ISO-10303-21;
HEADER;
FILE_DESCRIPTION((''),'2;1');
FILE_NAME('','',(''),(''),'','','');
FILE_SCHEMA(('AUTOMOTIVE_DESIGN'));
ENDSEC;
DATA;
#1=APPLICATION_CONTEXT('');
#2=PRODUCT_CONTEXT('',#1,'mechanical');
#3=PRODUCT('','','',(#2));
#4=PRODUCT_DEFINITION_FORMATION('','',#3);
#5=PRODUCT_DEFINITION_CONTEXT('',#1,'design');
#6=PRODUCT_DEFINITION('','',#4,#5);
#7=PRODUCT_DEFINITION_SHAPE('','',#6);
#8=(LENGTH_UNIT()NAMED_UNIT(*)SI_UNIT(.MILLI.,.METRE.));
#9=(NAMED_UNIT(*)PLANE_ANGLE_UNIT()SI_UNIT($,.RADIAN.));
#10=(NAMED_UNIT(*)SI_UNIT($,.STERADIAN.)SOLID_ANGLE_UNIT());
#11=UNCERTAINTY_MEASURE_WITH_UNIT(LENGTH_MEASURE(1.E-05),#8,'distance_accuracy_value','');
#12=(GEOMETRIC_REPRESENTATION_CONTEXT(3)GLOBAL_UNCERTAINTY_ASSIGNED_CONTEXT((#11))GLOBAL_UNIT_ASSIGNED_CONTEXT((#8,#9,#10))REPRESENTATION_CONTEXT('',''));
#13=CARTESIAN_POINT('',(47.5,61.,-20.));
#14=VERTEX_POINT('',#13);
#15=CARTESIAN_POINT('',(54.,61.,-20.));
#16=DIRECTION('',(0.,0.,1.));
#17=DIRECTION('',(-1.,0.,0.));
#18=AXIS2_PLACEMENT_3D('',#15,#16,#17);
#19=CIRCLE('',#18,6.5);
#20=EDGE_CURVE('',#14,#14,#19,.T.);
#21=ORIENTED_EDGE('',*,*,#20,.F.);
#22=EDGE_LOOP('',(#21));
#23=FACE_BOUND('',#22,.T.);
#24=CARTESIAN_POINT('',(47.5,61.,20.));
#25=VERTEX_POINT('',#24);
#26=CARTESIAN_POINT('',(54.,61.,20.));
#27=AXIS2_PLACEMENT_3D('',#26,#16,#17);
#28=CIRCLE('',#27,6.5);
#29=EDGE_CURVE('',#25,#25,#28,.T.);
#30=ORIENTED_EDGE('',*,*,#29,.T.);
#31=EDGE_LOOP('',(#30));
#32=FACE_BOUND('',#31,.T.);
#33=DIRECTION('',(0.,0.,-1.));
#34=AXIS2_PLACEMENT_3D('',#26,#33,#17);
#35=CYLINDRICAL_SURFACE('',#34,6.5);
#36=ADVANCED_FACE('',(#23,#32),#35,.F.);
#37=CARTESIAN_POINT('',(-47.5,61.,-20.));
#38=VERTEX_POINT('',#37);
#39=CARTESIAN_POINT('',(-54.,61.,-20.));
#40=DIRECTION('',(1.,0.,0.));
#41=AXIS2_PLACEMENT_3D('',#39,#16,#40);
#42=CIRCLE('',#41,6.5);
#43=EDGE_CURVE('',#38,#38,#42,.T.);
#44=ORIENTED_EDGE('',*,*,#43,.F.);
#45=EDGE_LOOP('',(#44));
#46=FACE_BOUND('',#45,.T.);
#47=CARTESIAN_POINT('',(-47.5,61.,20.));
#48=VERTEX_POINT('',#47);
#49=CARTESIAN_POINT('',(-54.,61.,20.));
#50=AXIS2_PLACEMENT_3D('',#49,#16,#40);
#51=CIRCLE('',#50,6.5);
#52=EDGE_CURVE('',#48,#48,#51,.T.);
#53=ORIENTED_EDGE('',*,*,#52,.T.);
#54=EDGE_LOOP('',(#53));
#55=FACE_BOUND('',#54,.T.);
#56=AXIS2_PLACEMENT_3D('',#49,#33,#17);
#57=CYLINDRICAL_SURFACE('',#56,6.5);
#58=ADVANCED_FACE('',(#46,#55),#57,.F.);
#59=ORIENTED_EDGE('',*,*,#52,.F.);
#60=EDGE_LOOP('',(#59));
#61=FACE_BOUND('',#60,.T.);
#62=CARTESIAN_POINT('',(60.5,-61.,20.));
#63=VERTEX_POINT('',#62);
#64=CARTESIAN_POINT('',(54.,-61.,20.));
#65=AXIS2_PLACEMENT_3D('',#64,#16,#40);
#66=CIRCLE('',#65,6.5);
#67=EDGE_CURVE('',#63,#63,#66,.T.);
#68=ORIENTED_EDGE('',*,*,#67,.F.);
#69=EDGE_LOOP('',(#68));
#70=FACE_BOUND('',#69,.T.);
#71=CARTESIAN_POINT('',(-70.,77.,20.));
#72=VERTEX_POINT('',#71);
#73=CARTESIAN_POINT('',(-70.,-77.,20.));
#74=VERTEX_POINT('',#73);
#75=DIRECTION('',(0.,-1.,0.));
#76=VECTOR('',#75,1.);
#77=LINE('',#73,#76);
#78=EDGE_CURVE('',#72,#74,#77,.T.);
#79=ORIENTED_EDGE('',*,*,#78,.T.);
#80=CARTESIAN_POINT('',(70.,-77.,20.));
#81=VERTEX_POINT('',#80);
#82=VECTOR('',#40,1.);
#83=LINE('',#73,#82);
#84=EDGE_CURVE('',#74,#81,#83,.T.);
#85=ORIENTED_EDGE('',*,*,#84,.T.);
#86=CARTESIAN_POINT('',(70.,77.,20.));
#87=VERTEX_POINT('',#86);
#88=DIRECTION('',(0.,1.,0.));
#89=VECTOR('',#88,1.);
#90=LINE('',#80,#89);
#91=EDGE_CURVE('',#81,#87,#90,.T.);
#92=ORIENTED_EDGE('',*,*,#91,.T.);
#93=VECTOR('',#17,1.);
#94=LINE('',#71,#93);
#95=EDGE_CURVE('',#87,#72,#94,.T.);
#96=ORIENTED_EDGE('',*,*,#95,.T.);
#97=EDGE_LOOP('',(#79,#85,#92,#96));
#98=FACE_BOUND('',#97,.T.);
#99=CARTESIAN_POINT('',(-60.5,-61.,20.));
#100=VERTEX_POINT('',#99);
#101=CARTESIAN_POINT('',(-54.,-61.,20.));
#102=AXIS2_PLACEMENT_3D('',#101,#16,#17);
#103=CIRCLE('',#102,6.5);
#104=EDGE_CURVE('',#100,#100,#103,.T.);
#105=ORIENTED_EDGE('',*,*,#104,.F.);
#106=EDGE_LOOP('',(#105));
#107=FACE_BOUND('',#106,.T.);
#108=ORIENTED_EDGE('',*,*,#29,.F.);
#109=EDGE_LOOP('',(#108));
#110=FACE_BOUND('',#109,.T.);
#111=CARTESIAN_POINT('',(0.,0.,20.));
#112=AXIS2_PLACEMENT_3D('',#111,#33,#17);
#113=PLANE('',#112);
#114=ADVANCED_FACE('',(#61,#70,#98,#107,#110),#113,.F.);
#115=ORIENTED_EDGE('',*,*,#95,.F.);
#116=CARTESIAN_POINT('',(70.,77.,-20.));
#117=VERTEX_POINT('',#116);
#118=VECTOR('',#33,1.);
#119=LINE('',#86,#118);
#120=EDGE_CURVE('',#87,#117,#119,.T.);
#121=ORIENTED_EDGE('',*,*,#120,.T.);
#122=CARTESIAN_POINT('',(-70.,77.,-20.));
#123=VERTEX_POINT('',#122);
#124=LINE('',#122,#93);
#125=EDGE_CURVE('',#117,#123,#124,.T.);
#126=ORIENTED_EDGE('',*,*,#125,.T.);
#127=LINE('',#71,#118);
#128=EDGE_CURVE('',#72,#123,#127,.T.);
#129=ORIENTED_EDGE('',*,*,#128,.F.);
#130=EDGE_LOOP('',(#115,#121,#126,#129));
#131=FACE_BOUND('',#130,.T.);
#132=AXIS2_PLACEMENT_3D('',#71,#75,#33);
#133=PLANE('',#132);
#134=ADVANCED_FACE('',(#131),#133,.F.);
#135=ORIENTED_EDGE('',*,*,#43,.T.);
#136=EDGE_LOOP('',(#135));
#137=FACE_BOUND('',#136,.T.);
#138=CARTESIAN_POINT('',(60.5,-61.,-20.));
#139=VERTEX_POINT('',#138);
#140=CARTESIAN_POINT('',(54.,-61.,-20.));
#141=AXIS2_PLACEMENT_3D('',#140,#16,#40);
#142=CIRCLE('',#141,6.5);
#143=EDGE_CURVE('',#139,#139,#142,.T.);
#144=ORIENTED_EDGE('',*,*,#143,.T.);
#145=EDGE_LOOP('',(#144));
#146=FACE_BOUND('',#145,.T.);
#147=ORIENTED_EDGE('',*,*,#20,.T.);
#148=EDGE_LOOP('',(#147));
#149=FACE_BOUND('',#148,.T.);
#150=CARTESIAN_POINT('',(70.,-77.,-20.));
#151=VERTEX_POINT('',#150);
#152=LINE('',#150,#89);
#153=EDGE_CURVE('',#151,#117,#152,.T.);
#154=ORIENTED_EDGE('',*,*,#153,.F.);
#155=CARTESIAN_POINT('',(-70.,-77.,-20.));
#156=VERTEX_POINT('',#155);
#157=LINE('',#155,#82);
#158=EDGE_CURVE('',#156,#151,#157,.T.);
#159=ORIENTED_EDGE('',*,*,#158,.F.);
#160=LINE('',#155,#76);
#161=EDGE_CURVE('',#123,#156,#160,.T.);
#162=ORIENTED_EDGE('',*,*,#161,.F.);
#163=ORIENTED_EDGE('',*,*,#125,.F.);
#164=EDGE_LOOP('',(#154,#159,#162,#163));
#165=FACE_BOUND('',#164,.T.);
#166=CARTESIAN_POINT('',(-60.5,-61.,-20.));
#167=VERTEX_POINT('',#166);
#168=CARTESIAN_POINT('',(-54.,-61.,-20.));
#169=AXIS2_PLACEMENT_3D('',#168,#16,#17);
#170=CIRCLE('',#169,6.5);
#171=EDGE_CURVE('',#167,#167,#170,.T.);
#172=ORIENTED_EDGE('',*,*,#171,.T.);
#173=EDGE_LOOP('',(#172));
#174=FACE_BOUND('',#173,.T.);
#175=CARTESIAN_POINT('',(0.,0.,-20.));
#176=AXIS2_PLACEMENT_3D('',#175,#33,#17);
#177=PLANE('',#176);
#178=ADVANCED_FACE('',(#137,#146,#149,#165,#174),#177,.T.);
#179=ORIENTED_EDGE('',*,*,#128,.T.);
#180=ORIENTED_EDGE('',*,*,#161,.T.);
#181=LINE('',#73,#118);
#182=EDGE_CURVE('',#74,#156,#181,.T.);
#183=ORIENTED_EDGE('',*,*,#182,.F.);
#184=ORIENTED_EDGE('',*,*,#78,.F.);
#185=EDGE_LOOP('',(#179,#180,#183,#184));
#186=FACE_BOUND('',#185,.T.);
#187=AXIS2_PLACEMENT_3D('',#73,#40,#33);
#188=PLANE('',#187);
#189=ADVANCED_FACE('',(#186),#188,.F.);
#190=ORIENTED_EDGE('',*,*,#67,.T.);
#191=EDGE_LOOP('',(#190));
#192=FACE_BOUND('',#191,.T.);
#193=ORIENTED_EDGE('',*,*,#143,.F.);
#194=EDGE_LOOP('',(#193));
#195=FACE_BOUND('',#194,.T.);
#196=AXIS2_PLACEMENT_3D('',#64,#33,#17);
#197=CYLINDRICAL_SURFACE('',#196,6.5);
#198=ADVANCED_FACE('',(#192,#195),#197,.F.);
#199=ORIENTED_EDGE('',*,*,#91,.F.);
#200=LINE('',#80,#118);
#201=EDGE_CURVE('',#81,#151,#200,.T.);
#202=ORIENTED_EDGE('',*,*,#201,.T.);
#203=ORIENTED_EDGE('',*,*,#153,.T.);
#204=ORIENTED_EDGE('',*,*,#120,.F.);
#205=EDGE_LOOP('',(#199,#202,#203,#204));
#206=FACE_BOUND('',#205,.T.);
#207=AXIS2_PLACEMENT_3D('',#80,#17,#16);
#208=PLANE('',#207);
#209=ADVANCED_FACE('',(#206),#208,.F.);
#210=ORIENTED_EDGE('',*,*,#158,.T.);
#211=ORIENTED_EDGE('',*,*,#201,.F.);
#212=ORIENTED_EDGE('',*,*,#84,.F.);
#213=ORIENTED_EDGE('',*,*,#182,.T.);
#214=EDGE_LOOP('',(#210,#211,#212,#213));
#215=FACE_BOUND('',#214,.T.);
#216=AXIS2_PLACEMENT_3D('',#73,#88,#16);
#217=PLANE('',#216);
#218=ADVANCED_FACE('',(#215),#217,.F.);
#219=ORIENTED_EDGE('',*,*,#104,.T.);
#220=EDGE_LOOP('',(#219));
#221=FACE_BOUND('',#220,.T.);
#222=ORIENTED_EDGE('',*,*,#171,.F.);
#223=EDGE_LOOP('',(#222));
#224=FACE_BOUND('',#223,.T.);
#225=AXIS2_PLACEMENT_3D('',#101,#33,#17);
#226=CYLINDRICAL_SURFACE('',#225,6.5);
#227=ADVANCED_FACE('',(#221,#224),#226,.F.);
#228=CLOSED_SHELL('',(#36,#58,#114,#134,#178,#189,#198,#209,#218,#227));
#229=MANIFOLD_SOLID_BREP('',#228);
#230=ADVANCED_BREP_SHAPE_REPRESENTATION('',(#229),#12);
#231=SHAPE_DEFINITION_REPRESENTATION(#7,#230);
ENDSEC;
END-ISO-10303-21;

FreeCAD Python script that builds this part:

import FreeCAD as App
import Part
import Sketcher
from FreeCAD import Vector
Q = App.Units.Quantity


def add_polygon(sketch, points):
    """Adds a closed chain of lines whose ends are joined by coincident constraints."""
    first, n = sketch.GeometryCount, len(points)
    for a, b in zip(points, points[1:] + points[:1]):
        sketch.addGeometry(Part.LineSegment(App.Vector(*a, 0), App.Vector(*b, 0)), False)
    for i in range(n):
        sketch.addConstraint(Sketcher.Constraint("Coincident", first + i, 2, first + (i + 1) % n, 1))

doc = App.newDocument("Part")
body = doc.addObject("PartDesign::Body", "Body")

# Sketch on XY plane
sketch1 = body.newObject("Sketcher::SketchObject", "Sketch")
sketch1.AttachmentSupport = (doc.getObject("XY_Plane"), [""])
sketch1.MapMode = "FlatFace"
add_polygon(sketch1, [(-70, 77), (-70, -77), (70, -77), (70, 77)])  # lines 0-3
sketch1.addGeometry(Part.Circle(Vector(-54, -61, 0), Vector(0, 0, 1), 6), False)  # 4
sketch1.addGeometry(Part.Circle(Vector(54, -61, 0), Vector(0, 0, 1), 6), False)  # 5
sketch1.addGeometry(Part.Circle(Vector(-54, 61, 0), Vector(0, 0, 1), 6), False)  # 6
sketch1.addGeometry(Part.Circle(Vector(54, 61, 0), Vector(0, 0, 1), 6), False)  # 7
sketch1.addConstraint([
    Sketcher.Constraint("Vertical", 0),
    Sketcher.Constraint("Horizontal", 1),
    Sketcher.Constraint("Vertical", 2),
    Sketcher.Constraint("Horizontal", 3),
    Sketcher.Constraint("Equal", 4, 5),
    Sketcher.Constraint("Equal", 5, 6),
    Sketcher.Constraint("Equal", 6, 7),
    Sketcher.Constraint("Symmetric", 5, 3, 6, 3, -1, 1),
    Sketcher.Constraint("Symmetric", 4, 3, 7, 3, -1, 1),
    Sketcher.Constraint("Symmetric", 0, 2, 2, 2, -1, 1),
    Sketcher.Constraint("Symmetric", 4, 3, 5, 3, -2),
    Sketcher.Constraint("Diameter", 4, Q("13 mm")),
    Sketcher.Constraint("DistanceX", 1, 1, 1, 2, Q("140 mm")),
    Sketcher.Constraint("DistanceY", 0, 2, 0, 1, Q("154 mm")),
    Sketcher.Constraint("DistanceX", 4, 3, -1, 1, Q("54 mm")),
    Sketcher.Constraint("DistanceY", 4, 3, -1, 1, Q("61 mm")),
])
pad1 = body.newObject("PartDesign::Pad", "Pad")
pad1.Profile = sketch1
pad1.Length = 40
pad1.Midplane = True

doc.recompute()
